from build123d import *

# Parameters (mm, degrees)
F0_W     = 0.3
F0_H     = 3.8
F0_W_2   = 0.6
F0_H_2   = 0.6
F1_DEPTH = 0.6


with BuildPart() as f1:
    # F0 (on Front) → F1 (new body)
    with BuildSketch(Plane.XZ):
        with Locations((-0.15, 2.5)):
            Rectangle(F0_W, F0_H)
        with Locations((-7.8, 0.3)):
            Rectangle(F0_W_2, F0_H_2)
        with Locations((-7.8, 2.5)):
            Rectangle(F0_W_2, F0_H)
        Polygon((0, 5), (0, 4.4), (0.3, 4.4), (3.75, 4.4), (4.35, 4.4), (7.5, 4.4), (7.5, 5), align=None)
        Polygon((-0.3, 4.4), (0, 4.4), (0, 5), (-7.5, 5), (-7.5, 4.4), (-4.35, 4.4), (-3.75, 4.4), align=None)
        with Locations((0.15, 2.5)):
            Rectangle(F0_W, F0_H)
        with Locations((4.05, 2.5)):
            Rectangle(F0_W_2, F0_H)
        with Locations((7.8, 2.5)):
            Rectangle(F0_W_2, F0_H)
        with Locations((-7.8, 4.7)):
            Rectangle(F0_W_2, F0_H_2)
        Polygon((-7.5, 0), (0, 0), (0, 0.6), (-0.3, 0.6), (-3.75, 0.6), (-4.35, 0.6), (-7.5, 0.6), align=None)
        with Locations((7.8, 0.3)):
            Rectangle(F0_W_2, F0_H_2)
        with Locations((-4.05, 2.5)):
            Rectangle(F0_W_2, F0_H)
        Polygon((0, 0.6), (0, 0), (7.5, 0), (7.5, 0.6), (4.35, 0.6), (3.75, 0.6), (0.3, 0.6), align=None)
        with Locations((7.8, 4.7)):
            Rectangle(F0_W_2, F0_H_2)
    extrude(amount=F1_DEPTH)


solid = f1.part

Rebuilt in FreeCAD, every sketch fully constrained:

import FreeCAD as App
import Part
import Sketcher
Q = App.Units.Quantity

doc = App.newDocument("Part")
body = doc.addObject("PartDesign::Body", "Body")

# Sketch on XZ plane
sketch1 = doc.addObject("Sketcher::SketchObject", "Sketch")
body.addObject(sketch1)
sketch1.AttachmentSupport = (doc.XZ_Plane, [""])
sketch1.MapMode = "FlatFace"
sketch1.addGeometry([
    Part.LineSegment(App.Vector(8.1, 0, 0), App.Vector(8.1, 5, 0)),  # 0
    Part.LineSegment(App.Vector(8.1, 5, 0), App.Vector(-8.1, 5, 0)),  # 1
    Part.LineSegment(App.Vector(-8.1, 5, 0), App.Vector(-8.1, 0, 0)),  # 2
    Part.LineSegment(App.Vector(-8.1, 0, 0), App.Vector(8.1, 0, 0)),  # 3
    Part.LineSegment(App.Vector(-4.3, 0.6, 0), App.Vector(-7.5, 0.6, 0)),  # 4
    Part.LineSegment(App.Vector(-7.5, 0.6, 0), App.Vector(-7.5, 4.4, 0)),  # 5
    Part.LineSegment(App.Vector(-7.5, 4.4, 0), App.Vector(-4.3, 4.4, 0)),  # 6
    Part.LineSegment(App.Vector(-4.3, 4.4, 0), App.Vector(-4.3, 0.6, 0)),  # 7
    Part.LineSegment(App.Vector(-0.3, 4.4, 0), App.Vector(-0.3, 0.6, 0)),  # 8
    Part.LineSegment(App.Vector(-0.3, 0.6, 0), App.Vector(-3.8, 0.6, 0)),  # 9
    Part.LineSegment(App.Vector(-3.8, 0.6, 0), App.Vector(-3.8, 4.4, 0)),  # 10
    Part.LineSegment(App.Vector(-3.8, 4.4, 0), App.Vector(-0.3, 4.4, 0)),  # 11
    Part.LineSegment(App.Vector(0.3, 0.6, 0), App.Vector(0.3, 4.4, 0)),  # 12
    Part.LineSegment(App.Vector(0.3, 4.4, 0), App.Vector(3.8, 4.4, 0)),  # 13
    Part.LineSegment(App.Vector(3.8, 4.4, 0), App.Vector(3.8, 0.6, 0)),  # 14
    Part.LineSegment(App.Vector(3.8, 0.6, 0), App.Vector(0.3, 0.6, 0)),  # 15
    Part.LineSegment(App.Vector(4.3, 4.4, 0), App.Vector(7.5, 4.4, 0)),  # 16
    Part.LineSegment(App.Vector(7.5, 4.4, 0), App.Vector(7.5, 0.6, 0)),  # 17
    Part.LineSegment(App.Vector(7.5, 0.6, 0), App.Vector(4.3, 0.6, 0)),  # 18
    Part.LineSegment(App.Vector(4.3, 0.6, 0), App.Vector(4.3, 4.4, 0)),  # 19
], False)
sketch1.addConstraint([
    Sketcher.Constraint("Coincident", 0, 2, 1, 1),
    Sketcher.Constraint("Coincident", 1, 2, 2, 1),
    Sketcher.Constraint("Coincident", 2, 2, 3, 1),
    Sketcher.Constraint("Coincident", 3, 2, 0, 1),
    Sketcher.Constraint("Coincident", 4, 2, 5, 1),
    Sketcher.Constraint("Coincident", 5, 2, 6, 1),
    Sketcher.Constraint("Coincident", 6, 2, 7, 1),
    Sketcher.Constraint("Coincident", 7, 2, 4, 1),
    Sketcher.Constraint("Coincident", 8, 2, 9, 1),
    Sketcher.Constraint("Coincident", 9, 2, 10, 1),
    Sketcher.Constraint("Coincident", 10, 2, 11, 1),
    Sketcher.Constraint("Coincident", 11, 2, 8, 1),
    Sketcher.Constraint("Coincident", 12, 2, 13, 1),
    Sketcher.Constraint("Coincident", 13, 2, 14, 1),
    Sketcher.Constraint("Coincident", 14, 2, 15, 1),
    Sketcher.Constraint("Coincident", 15, 2, 12, 1),
    Sketcher.Constraint("Coincident", 16, 2, 17, 1),
    Sketcher.Constraint("Coincident", 17, 2, 18, 1),
    Sketcher.Constraint("Coincident", 18, 2, 19, 1),
    Sketcher.Constraint("Coincident", 19, 2, 16, 1),
    Sketcher.Constraint("Vertical", 0),
    Sketcher.Constraint("Horizontal", 1),
    Sketcher.Constraint("Vertical", 2),
    Sketcher.Constraint("Horizontal", 3),
    Sketcher.Constraint("Horizontal", 4),
    Sketcher.Constraint("Vertical", 5),
    Sketcher.Constraint("Horizontal", 6),
    Sketcher.Constraint("Vertical", 7),
    Sketcher.Constraint("Vertical", 8),
    Sketcher.Constraint("Horizontal", 9),
    Sketcher.Constraint("Vertical", 10),
    Sketcher.Constraint("Horizontal", 11),
    Sketcher.Constraint("Vertical", 12),
    Sketcher.Constraint("Horizontal", 13),
    Sketcher.Constraint("Vertical", 14),
    Sketcher.Constraint("Horizontal", 15),
    Sketcher.Constraint("Horizontal", 16),
    Sketcher.Constraint("Vertical", 17),
    Sketcher.Constraint("Horizontal", 18),
    Sketcher.Constraint("Vertical", 19),
    Sketcher.Constraint("Symmetric", 2, 2, 3, 2, -1, 1),
    Sketcher.Constraint("Symmetric", 11, 2, 12, 2, -2),
    Sketcher.Constraint("Symmetric", 9, 2, 14, 2, -2),
    Sketcher.Constraint("Symmetric", 5, 2, 16, 2, -2),
    Sketcher.Constraint("Symmetric", 7, 2, 18, 2, -2),
    Sketcher.Constraint("Horizontal", 7, 2, 8, 2),
    Sketcher.Constraint("Horizontal", 6, 2, 10, 2),
    Sketcher.Constraint("DistanceY", 0, 1, 0, 2, Q("5 mm")),
    Sketcher.Constraint("DistanceX", 1, 2, 1, 1, Q("16.2 mm")),
    Sketcher.Constraint("DistanceY", 5, 1, 5, 2, Q("3.8 mm")),
    Sketcher.Constraint("DistanceX", 4, 2, 4, 1, Q("3.15 mm")),
    Sketcher.Constraint("DistanceX", 9, 2, 9, 1, Q("3.45 mm")),
    Sketcher.Constraint("DistanceX", 4, 2, -1, 1, Q("7.5 mm")),
    Sketcher.Constraint("DistanceY", -1, 1, 4, 2, Q("0.6 mm")),
    Sketcher.Constraint("DistanceX", 8, 2, -1, 1, Q("0.3 mm")),
])
pad1 = doc.addObject("PartDesign::Pad", "Pad")
body.addObject(pad1)
pad1.Profile = sketch1
pad1.Length = 0.6

doc.recompute()
